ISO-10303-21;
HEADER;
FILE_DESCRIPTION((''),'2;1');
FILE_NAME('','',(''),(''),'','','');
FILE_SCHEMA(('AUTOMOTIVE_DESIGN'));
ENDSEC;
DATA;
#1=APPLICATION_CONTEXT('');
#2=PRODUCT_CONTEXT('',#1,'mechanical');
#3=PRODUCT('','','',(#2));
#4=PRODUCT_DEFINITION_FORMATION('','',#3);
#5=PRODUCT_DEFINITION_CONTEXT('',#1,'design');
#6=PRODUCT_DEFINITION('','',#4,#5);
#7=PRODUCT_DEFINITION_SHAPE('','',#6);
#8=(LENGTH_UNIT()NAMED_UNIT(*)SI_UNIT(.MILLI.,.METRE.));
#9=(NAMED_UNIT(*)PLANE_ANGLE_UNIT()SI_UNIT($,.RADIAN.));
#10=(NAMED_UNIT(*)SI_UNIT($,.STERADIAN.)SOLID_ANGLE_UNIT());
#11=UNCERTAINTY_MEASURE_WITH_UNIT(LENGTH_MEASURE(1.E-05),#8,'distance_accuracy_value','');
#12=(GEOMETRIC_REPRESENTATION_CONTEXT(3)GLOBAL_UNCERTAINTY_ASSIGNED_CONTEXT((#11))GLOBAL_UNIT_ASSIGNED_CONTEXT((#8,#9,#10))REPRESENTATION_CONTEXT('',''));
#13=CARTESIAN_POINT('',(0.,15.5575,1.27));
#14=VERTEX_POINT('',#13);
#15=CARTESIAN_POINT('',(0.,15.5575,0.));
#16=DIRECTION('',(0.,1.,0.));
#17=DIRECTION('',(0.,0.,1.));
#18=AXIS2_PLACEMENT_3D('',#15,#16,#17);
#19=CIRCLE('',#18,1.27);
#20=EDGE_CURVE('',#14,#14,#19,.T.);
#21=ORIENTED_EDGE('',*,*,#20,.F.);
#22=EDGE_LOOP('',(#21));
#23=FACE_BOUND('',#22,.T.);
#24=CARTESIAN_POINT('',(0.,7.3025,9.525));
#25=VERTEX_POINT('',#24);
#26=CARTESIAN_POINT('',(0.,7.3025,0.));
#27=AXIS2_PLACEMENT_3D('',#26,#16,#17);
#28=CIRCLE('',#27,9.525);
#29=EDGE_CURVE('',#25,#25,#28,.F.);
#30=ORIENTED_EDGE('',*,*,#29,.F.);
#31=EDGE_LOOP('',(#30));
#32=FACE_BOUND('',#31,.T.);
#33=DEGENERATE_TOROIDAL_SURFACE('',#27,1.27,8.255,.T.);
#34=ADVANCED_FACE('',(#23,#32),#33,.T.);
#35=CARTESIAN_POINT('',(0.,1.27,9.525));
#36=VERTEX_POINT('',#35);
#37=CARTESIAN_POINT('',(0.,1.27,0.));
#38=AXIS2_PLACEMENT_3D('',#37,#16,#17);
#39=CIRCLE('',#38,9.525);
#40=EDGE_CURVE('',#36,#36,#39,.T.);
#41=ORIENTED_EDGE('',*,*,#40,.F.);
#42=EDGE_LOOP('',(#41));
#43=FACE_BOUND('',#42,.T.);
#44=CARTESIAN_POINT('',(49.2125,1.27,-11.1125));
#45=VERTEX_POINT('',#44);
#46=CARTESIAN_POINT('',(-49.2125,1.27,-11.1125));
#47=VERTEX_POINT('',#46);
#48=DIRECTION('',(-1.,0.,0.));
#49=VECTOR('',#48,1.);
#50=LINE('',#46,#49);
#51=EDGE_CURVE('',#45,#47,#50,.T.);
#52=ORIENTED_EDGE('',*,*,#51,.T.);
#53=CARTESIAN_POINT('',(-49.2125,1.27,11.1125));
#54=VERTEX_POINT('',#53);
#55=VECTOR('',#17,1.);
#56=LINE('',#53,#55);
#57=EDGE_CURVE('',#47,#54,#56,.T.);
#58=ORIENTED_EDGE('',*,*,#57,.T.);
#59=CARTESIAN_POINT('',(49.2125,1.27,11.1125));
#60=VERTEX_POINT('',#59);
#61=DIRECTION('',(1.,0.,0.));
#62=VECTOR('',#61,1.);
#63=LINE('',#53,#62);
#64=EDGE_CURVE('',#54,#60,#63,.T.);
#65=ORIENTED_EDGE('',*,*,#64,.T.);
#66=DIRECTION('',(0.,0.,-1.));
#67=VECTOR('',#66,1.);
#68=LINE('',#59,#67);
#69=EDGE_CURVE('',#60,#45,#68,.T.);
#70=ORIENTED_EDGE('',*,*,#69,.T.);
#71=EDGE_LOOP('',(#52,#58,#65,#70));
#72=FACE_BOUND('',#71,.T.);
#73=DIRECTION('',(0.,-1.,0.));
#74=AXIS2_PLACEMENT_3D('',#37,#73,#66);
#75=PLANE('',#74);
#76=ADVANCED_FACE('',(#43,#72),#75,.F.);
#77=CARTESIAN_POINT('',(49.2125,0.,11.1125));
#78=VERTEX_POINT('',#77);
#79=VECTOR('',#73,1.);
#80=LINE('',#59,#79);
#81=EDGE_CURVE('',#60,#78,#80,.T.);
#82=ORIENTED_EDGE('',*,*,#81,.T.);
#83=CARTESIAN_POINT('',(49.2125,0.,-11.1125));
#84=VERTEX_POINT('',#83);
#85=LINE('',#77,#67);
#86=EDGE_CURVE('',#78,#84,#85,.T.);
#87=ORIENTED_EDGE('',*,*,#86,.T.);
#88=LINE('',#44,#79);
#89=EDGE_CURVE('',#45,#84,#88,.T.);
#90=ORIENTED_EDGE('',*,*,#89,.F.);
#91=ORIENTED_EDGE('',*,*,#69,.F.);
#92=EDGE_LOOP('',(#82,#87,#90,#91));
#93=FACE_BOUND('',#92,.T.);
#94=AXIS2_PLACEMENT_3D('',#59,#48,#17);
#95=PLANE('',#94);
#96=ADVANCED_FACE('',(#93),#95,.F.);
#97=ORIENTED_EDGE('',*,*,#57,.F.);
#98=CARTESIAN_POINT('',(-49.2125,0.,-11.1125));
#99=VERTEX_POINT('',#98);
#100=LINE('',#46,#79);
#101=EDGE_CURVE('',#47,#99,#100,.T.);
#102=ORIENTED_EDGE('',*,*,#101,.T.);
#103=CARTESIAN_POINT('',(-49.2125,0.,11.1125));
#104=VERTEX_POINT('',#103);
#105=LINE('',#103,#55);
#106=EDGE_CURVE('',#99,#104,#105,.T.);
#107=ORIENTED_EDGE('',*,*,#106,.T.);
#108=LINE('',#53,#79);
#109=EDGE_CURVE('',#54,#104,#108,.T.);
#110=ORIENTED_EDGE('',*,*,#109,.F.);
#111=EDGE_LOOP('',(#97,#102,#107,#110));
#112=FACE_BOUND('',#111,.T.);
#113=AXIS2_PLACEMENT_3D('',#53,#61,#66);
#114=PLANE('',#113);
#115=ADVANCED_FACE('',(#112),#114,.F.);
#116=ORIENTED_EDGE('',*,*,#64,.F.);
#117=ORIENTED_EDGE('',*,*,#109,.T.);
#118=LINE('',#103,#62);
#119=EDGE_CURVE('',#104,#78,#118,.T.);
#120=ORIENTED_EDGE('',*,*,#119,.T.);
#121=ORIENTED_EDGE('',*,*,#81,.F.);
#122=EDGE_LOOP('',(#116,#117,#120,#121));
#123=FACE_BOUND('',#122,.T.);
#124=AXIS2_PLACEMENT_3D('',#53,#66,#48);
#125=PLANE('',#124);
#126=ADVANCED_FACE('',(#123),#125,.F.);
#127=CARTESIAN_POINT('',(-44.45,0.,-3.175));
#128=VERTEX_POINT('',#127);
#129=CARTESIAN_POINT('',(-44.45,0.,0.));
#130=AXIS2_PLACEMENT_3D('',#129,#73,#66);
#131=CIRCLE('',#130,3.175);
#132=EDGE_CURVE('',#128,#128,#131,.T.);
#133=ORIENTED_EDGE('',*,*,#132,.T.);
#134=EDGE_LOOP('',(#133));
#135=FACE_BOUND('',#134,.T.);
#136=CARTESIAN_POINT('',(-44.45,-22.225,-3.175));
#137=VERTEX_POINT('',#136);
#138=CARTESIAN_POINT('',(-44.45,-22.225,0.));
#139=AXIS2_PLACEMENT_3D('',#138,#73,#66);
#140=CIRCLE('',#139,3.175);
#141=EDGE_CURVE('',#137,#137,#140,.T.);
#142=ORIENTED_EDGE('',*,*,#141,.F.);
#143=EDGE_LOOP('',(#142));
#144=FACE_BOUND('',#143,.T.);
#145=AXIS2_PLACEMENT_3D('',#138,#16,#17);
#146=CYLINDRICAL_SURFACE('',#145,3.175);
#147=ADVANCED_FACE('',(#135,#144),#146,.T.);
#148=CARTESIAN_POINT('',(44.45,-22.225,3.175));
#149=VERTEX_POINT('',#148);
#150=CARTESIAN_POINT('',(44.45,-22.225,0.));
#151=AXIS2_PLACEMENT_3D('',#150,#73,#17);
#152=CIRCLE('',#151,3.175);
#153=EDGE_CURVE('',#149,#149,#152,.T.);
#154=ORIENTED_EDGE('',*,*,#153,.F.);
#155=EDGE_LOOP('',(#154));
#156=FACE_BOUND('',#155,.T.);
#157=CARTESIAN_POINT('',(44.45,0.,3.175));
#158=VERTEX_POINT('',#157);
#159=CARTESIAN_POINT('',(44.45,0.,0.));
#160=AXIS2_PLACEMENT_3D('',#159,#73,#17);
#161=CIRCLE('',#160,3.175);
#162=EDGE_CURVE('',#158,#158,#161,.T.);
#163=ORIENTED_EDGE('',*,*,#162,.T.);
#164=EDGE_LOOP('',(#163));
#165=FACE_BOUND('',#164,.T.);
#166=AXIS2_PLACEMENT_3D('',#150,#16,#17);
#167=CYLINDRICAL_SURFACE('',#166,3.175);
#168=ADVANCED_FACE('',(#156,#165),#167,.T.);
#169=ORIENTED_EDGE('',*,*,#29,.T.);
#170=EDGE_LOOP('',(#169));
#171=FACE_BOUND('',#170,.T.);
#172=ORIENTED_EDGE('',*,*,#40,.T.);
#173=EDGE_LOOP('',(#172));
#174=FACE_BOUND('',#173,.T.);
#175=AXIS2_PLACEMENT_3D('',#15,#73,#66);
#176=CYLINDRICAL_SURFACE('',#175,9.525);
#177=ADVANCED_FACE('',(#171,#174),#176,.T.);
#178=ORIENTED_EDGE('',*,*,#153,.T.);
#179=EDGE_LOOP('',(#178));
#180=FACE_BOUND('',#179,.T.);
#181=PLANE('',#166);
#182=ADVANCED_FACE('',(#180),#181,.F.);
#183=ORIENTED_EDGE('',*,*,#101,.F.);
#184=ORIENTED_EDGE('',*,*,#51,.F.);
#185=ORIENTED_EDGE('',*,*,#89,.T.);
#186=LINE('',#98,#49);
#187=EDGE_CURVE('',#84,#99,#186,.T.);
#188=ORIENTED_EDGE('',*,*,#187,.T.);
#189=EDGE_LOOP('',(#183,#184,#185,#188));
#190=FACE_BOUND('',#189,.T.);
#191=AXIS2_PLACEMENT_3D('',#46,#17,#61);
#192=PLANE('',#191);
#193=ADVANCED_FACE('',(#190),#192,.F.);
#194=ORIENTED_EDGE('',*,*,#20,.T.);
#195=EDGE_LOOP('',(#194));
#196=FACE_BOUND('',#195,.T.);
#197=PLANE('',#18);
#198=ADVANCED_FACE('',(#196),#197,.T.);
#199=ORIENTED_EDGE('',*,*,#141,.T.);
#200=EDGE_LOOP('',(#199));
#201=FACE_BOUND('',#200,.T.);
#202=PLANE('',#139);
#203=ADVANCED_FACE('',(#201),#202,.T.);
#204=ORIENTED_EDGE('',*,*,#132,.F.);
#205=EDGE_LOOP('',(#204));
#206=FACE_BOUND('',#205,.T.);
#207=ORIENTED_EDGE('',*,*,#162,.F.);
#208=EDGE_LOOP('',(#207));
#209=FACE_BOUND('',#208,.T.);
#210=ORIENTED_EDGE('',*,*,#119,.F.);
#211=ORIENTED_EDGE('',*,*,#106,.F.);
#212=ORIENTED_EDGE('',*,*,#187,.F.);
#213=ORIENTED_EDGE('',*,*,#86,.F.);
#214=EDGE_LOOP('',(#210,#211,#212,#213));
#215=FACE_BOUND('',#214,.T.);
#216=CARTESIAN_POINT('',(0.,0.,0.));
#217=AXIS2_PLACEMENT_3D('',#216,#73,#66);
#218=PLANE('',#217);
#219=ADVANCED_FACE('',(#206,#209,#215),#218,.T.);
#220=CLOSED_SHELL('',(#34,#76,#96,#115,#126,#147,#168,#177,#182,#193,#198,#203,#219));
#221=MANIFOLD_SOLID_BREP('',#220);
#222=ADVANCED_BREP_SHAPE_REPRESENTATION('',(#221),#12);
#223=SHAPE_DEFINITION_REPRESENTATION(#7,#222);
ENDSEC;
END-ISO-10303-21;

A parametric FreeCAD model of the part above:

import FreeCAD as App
import Part
import Sketcher

V = App.Vector
Q = App.Units.Quantity


def edges_at(feature, points):
    """Names of the edges that pass closest to the given points."""
    edges = feature.Shape.Edges
    near = lambda p: min(range(len(edges)), key=lambda i: edges[i].distToShape(Part.Vertex(*p))[0])
    return sorted({f"Edge{near(p) + 1}" for p in points})


def add_polygon(sketch, points):
    """Adds a closed chain of lines whose ends are joined by coincident constraints."""
    first, n = sketch.GeometryCount, len(points)
    for a, b in zip(points, points[1:] + points[:1]):
        sketch.addGeometry(Part.LineSegment(App.Vector(*a, 0), App.Vector(*b, 0)), False)
    for i in range(n):
        sketch.addConstraint(Sketcher.Constraint("Coincident", first + i, 2, first + (i + 1) % n, 1))

doc = App.newDocument("Part")
params = doc.addObject("Spreadsheet::Sheet", "Params")
for row, (alias, value) in enumerate([
    ("sketch1_width", "3.875 in"),
    ("sketch1_height", "0.875 in"),
    ("pad1_length", "0.05 in"),
    ("sketch2_diameter", "0.75 in"),
    ("pad2_length", "0.5625 in"),
    ("fillet_radius", "0.325 in"),
    ("sketch3_diameter", "0.25 in"),
    ("pad3_length", "0.875 in"),
], start=1):
    params.set(f"A{row}", alias)
    params.set(f"B{row}", "=" + value)
    params.setAlias(f"B{row}", alias)

body = doc.addObject("PartDesign::Body", "Body")

# Sketch on XZ plane
sketch1 = body.newObject("Sketcher::SketchObject", "Sketch")
sketch1.AttachmentSupport = (doc.getObject("XZ_Plane"), [""])
sketch1.MapMode = "FlatFace"
add_polygon(sketch1, [(-49, -11), (-49, 11), (49, 11), (49, -11)])  # lines 0-3
sketch1.addConstraint([
    Sketcher.Constraint("Vertical", 0),
    Sketcher.Constraint("Horizontal", 1),
    Sketcher.Constraint("Vertical", 2),
    Sketcher.Constraint("Horizontal", 3),
    Sketcher.Constraint("Symmetric", 0, 2, 2, 2, -1, 1),
    Sketcher.Constraint("DistanceX", 1, 1, 1, 2, Q("3.875 in")),
    Sketcher.Constraint("DistanceY", 0, 1, 0, 2, Q("0.875 in")),
])
sketch1.setExpression("Constraints[9]", "Params.sketch1_width")
sketch1.setExpression("Constraints[10]", "Params.sketch1_height")
pad1 = body.newObject("PartDesign::Pad", "Pad")
pad1.Profile = sketch1
pad1.setExpression("Length", "Params.pad1_length")
pad1.Reversed = True

# Sketch on XZ plane
sketch2 = body.newObject("Sketcher::SketchObject", "Sketch001")
sketch2.AttachmentSupport = (doc.getObject("XZ_Plane"), [""])
sketch2.MapMode = "FlatFace"
sketch2.AttachmentOffset = App.Placement(V(0, 0, -0.05 * 25.4), App.Rotation())
sketch2.addGeometry(Part.Circle(V(0, 0, 0), V(0, 0, 1), 10), False)
sketch2.addConstraint([
    Sketcher.Constraint("Coincident", 0, 3, -1, 1),
    Sketcher.Constraint("Diameter", 0, Q("0.75 in")),
])
sketch2.setExpression("Constraints[1]", "Params.sketch2_diameter")
pad2 = body.newObject("PartDesign::Pad", "Pad001")
pad2.Profile = sketch2
pad2.setExpression("Length", "Params.pad2_length")
pad2.Reversed = True
doc.recompute()

fillet = body.newObject("PartDesign::Fillet", "Fillet")
fillet.Base = (pad2, edges_at(pad2, [(-9.525, 15.557, 0)]))
fillet.setExpression("Radius", "Params.fillet_radius")

# Sketch on XZ plane
sketch3 = body.newObject("Sketcher::SketchObject", "Sketch002")
sketch3.AttachmentSupport = (doc.getObject("XZ_Plane"), [""])
sketch3.MapMode = "FlatFace"
sketch3.addGeometry([
    Part.Circle(V(-44.5, 0, 0), V(0, 0, 1), 3.2),
    Part.Circle(V(44.5, 0, 0), V(0, 0, 1), 3.2),
], False)
sketch3.addConstraint([
    Sketcher.Constraint("Equal", 0, 1),
    Sketcher.Constraint("Symmetric", 0, 3, 1, 3, -1, 1),
    Sketcher.Constraint("PointOnObject", 0, 3, -1),
    Sketcher.Constraint("Diameter", 0, Q("0.25 in")),
    Sketcher.Constraint("DistanceX", 0, 3, 1, 3, Q("3.5 in")),
])
sketch3.setExpression("Constraints[3]", "Params.sketch3_diameter")
pad3 = body.newObject("PartDesign::Pad", "Pad002")
pad3.Profile = sketch3
pad3.setExpression("Length", "Params.pad3_length")

doc.recompute()
